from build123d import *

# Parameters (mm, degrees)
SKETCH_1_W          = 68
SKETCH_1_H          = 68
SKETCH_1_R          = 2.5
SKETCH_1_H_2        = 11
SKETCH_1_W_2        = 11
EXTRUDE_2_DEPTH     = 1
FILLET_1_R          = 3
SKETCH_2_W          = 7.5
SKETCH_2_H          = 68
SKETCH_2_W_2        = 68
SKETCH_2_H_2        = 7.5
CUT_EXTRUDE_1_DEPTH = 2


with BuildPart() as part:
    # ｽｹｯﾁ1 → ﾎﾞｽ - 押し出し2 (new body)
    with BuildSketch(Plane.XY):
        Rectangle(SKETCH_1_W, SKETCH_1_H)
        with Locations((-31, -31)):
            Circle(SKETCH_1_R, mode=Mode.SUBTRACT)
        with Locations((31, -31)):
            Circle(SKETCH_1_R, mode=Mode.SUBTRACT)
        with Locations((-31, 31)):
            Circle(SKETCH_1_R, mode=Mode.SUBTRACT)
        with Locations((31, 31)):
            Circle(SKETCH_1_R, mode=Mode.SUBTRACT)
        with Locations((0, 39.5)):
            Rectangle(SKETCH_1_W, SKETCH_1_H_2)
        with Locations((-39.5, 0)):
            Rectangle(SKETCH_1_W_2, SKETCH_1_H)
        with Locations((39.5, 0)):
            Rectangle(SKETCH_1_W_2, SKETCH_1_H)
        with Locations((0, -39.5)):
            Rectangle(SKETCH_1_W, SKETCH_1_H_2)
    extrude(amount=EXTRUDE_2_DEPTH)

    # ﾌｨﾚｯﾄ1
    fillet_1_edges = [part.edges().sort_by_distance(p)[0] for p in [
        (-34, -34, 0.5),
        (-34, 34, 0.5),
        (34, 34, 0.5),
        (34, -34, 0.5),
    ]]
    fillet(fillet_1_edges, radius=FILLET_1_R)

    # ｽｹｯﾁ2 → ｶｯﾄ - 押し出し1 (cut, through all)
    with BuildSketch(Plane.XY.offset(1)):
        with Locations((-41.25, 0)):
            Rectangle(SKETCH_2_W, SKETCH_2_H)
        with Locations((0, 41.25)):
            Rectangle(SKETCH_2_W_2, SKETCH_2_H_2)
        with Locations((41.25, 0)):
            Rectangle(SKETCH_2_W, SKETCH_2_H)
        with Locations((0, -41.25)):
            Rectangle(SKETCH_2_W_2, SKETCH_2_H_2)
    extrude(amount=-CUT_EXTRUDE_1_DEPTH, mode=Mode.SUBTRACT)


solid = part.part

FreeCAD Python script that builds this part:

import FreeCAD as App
import Part
import Sketcher
from FreeCAD import Vector


def edges_at(feature, points):
    """Names of the edges that pass closest to the given points."""
    edges = feature.Shape.Edges
    near = lambda p: min(range(len(edges)), key=lambda i: edges[i].distToShape(Part.Vertex(*p))[0])
    return sorted({f"Edge{near(p) + 1}" for p in points})


def add_polygon(sketch, points):
    """Adds a closed chain of lines whose ends are joined by coincident constraints."""
    first, n = sketch.GeometryCount, len(points)
    for a, b in zip(points, points[1:] + points[:1]):
        sketch.addGeometry(Part.LineSegment(App.Vector(*a, 0), App.Vector(*b, 0)), False)
    for i in range(n):
        sketch.addConstraint(Sketcher.Constraint("Coincident", first + i, 2, first + (i + 1) % n, 1))

doc = App.newDocument("Part")
body = doc.addObject("PartDesign::Body", "Body")

# Sketch on XY plane
sketch1 = doc.addObject("Sketcher::SketchObject", "Sketch")
body.addObject(sketch1)
sketch1.AttachmentSupport = (doc.XY_Plane, [""])
sketch1.MapMode = "FlatFace"
add_polygon(sketch1, [(34, 34), (34, 45), (-34, 45), (-34, 34), (-45, 34), (-45, -34), (-34, -34), (-34, -45), (34, -45), (34, -34), (45, -34), (45, 34)])  # lines 0-11
sketch1.addGeometry(Part.Circle(Vector(-31, -31, 0), Vector(0, 0, 1), 2.5), False)  # 12
sketch1.addGeometry(Part.Circle(Vector(31, -31, 0), Vector(0, 0, 1), 2.5), False)  # 13
sketch1.addGeometry(Part.Circle(Vector(-31, 31, 0), Vector(0, 0, 1), 2.5), False)  # 14
sketch1.addGeometry(Part.Circle(Vector(31, 31, 0), Vector(0, 0, 1), 2.5), False)  # 15
sketch1.addConstraint([
    Sketcher.Constraint("Vertical", 0),
    Sketcher.Constraint("Horizontal", 1),
    Sketcher.Constraint("Vertical", 2),
    Sketcher.Constraint("Horizontal", 3),
    Sketcher.Constraint("Vertical", 4),
    Sketcher.Constraint("Horizontal", 5),
    Sketcher.Constraint("Vertical", 6),
    Sketcher.Constraint("Horizontal", 7),
    Sketcher.Constraint("Vertical", 8),
    Sketcher.Constraint("Horizontal", 9),
    Sketcher.Constraint("Vertical", 10),
    Sketcher.Constraint("Horizontal", 11),
    Sketcher.Constraint("Equal", 12, 13),
    Sketcher.Constraint("Equal", 13, 14),
    Sketcher.Constraint("Equal", 14, 15),
    Sketcher.Constraint("Symmetric", 13, 3, 14, 3, -1, 1),
    Sketcher.Constraint("Symmetric", 12, 3, 15, 3, -1, 1),
    Sketcher.Constraint("Symmetric", 0, 2, 6, 2, -1, 1),
    Sketcher.Constraint("Symmetric", 2, 2, 8, 2, -1, 1),
    Sketcher.Constraint("Symmetric", 4, 2, 10, 2, -1, 1),
    Sketcher.Constraint("Symmetric", 12, 3, 13, 3, -2),
    Sketcher.Constraint("Symmetric", 5, 2, 8, 2, -2),
    Sketcher.Constraint("Equal", 11, 0),
    Sketcher.Constraint("Equal", 7, 4),
    Sketcher.Constraint("Diameter", 12, 5.0),
    Sketcher.Constraint("DistanceX", 1, 2, 1, 1, 68.0),
    Sketcher.Constraint("DistanceX", 3, 2, 3, 1, 11.0),
    Sketcher.Constraint("DistanceX", 12, 3, -1, 1, 31.0),
    Sketcher.Constraint("DistanceY", 12, 3, -1, 1, 31.0),
])
pad1 = doc.addObject("PartDesign::Pad", "Pad")
body.addObject(pad1)
pad1.Profile = sketch1
pad1.Length = 1
doc.recompute()

fillet = doc.addObject("PartDesign::Fillet", "Fillet")
body.addObject(fillet)
fillet.Base = (pad1, edges_at(pad1, [
    (-34, -34, 0.5),
    (-34, 34, 0.5),
    (34, 34, 0.5),
    (34, -34, 0.5),
]))
fillet.Radius = 3

# Sketch on XY plane
sketch2 = doc.addObject("Sketcher::SketchObject", "Sketch001")
body.addObject(sketch2)
sketch2.AttachmentSupport = (doc.XY_Plane, [""])
sketch2.MapMode = "FlatFace"
sketch2.AttachmentOffset = App.Placement(Vector(0, 0, 1), App.Rotation())
add_polygon(sketch2, [(-45, 34), (-45, -34), (-38, -34), (-38, 34)])  # lines 0-3
add_polygon(sketch2, [(-34, 45), (-34, 38), (34, 38), (34, 45)])  # lines 4-7
add_polygon(sketch2, [(38, 34), (38, -34), (45, -34), (45, 34)])  # lines 8-11
add_polygon(sketch2, [(-34, -38), (-34, -45), (34, -45), (34, -38)])  # lines 12-15
sketch2.addConstraint([
    Sketcher.Constraint("Vertical", 0),
    Sketcher.Constraint("Horizontal", 1),
    Sketcher.Constraint("Vertical", 2),
    Sketcher.Constraint("Horizontal", 3),
    Sketcher.Constraint("Vertical", 4),
    Sketcher.Constraint("Horizontal", 5),
    Sketcher.Constraint("Vertical", 6),
    Sketcher.Constraint("Horizontal", 7),
    Sketcher.Constraint("Vertical", 8),
    Sketcher.Constraint("Horizontal", 9),
    Sketcher.Constraint("Vertical", 10),
    Sketcher.Constraint("Horizontal", 11),
    Sketcher.Constraint("Vertical", 12),
    Sketcher.Constraint("Horizontal", 13),
    Sketcher.Constraint("Vertical", 14),
    Sketcher.Constraint("Horizontal", 15),
    Sketcher.Constraint("Symmetric", 2, 2, 8, 2, -1, 1),
    Sketcher.Constraint("Symmetric", 0, 2, 10, 2, -1, 1),
    Sketcher.Constraint("Symmetric", 6, 2, 12, 2, -1, 1),
    Sketcher.Constraint("Symmetric", 4, 2, 14, 2, -1, 1),
    Sketcher.Constraint("Horizontal", 1, 2, 8, 2),
    Sketcher.Constraint("Vertical", 7, 2, 12, 2),
    Sketcher.Constraint("Equal", 15, 0),
    Sketcher.Constraint("Equal", 11, 4),
    Sketcher.Constraint("DistanceX", 5, 1, 5, 2, 68.0),
    Sketcher.Constraint("DistanceX", 1, 1, 1, 2, 7.5),
    Sketcher.Constraint("DistanceX", 0, 2, -1, 1, 45.0),
    Sketcher.Constraint("DistanceY", -1, 1, 6, 2, 45.0),
])
pocket1 = doc.addObject("PartDesign::Pocket", "Pocket")
body.addObject(pocket1)
pocket1.Profile = sketch2
pocket1.Type = "ThroughAll"

doc.recompute()
